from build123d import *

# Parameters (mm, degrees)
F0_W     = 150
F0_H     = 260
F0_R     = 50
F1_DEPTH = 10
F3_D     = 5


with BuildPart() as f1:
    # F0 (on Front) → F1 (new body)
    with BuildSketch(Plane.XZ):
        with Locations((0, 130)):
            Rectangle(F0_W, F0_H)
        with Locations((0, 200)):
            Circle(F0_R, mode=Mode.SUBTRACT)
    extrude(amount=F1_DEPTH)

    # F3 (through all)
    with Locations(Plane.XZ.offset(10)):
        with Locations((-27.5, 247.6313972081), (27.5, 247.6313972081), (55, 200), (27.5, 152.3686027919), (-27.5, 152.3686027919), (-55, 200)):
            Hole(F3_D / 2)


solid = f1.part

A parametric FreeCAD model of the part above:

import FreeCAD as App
import Part
import Sketcher
from FreeCAD import Vector


def add_polygon(sketch, points):
    """Adds a closed chain of lines whose ends are joined by coincident constraints."""
    first, n = sketch.GeometryCount, len(points)
    for a, b in zip(points, points[1:] + points[:1]):
        sketch.addGeometry(Part.LineSegment(App.Vector(*a, 0), App.Vector(*b, 0)), False)
    for i in range(n):
        sketch.addConstraint(Sketcher.Constraint("Coincident", first + i, 2, first + (i + 1) % n, 1))

doc = App.newDocument("Part")
body = doc.addObject("PartDesign::Body", "Body")

# Sketch on XZ plane
sketch1 = body.newObject("Sketcher::SketchObject", "Sketch")
sketch1.AttachmentSupport = (doc.getObject("XZ_Plane"), [""])
sketch1.MapMode = "FlatFace"
add_polygon(sketch1, [(-75, 260), (-75, 0), (75, 0), (75, 260)])  # lines 0-3
sketch1.addGeometry(Part.Circle(Vector(0, 200, 0), Vector(0, 0, 1), 50), False)  # 4
sketch1.addConstraint(Sketcher.Constraint("Vertical", 0))
sketch1.addConstraint(Sketcher.Constraint("Horizontal", 1))
sketch1.addConstraint(Sketcher.Constraint("Vertical", 2))
sketch1.addConstraint(Sketcher.Constraint("Horizontal", 3))
sketch1.addConstraint(Sketcher.Constraint("Symmetric", 0, 2, 1, 2, -1, 1))
sketch1.addConstraint(Sketcher.Constraint("PointOnObject", 4, 3, -2))
sketch1.addConstraint(Sketcher.Constraint("Diameter", 4, 100.0))
sketch1.addConstraint(Sketcher.Constraint("DistanceX", 1, 1, 1, 2, 150.0))
sketch1.addConstraint(Sketcher.Constraint("DistanceY", 0, 2, 0, 1, 260.0))
sketch1.addConstraint(Sketcher.Constraint("DistanceY", -1, 1, 4, 3, 200.0))
pad1 = body.newObject("PartDesign::Pad", "Pad")
pad1.Profile = sketch1
pad1.Length = 10

# Sketch on XZ plane
sketch2 = body.newObject("Sketcher::SketchObject", "Sketch001")
sketch2.AttachmentSupport = (doc.getObject("XZ_Plane"), [""])
sketch2.MapMode = "FlatFace"
sketch2.AttachmentOffset = App.Placement(Vector(0, 0, 10), App.Rotation())
sketch2.addGeometry(Part.Circle(Vector(-27.5, 247.631397, 0), Vector(0, 0, 1), 2.5), False)
sketch2.addGeometry(Part.Circle(Vector(27.5, 247.631397, 0), Vector(0, 0, 1), 2.5), False)
sketch2.addGeometry(Part.Circle(Vector(55, 200, 0), Vector(0, 0, 1), 2.5), False)
sketch2.addGeometry(Part.Circle(Vector(27.5, 152.368603, 0), Vector(0, 0, 1), 2.5), False)
sketch2.addGeometry(Part.Circle(Vector(-27.5, 152.368603, 0), Vector(0, 0, 1), 2.5), False)
sketch2.addGeometry(Part.Circle(Vector(-55, 200, 0), Vector(0, 0, 1), 2.5), False)
sketch2.addConstraint(Sketcher.Constraint("Equal", 0, 1))
sketch2.addConstraint(Sketcher.Constraint("Equal", 1, 2))
sketch2.addConstraint(Sketcher.Constraint("Equal", 2, 3))
sketch2.addConstraint(Sketcher.Constraint("Equal", 3, 4))
sketch2.addConstraint(Sketcher.Constraint("Equal", 4, 5))
sketch2.addConstraint(Sketcher.Constraint("Symmetric", 0, 3, 1, 3, -2))
sketch2.addConstraint(Sketcher.Constraint("Symmetric", 3, 3, 4, 3, -2))
sketch2.addConstraint(Sketcher.Constraint("Symmetric", 2, 3, 5, 3, -2))
sketch2.addConstraint(Sketcher.Constraint("Vertical", 1, 3, 3, 3))
sketch2.addConstraint(Sketcher.Constraint("Diameter", 0, 5.0))
sketch2.addConstraint(Sketcher.Constraint("DistanceX", -1, 1, 2, 3, 55.0))
sketch2.addConstraint(Sketcher.Constraint("DistanceY", -1, 1, 2, 3, 200.0))
sketch2.addConstraint(Sketcher.Constraint("DistanceX", 0, 3, 1, 3, 55.0))
sketch2.addConstraint(Sketcher.Constraint("DistanceY", -1, 1, 0, 3, 247.631397))
sketch2.addConstraint(Sketcher.Constraint("DistanceY", -1, 1, 3, 3, 152.368603))
doc.recompute()
hole = body.newObject("PartDesign::Hole", "Hole")
hole.Profile = sketch2
hole.ThreadType = "None"
hole.Diameter = 5
hole.DepthType = "ThroughAll"

doc.recompute()
